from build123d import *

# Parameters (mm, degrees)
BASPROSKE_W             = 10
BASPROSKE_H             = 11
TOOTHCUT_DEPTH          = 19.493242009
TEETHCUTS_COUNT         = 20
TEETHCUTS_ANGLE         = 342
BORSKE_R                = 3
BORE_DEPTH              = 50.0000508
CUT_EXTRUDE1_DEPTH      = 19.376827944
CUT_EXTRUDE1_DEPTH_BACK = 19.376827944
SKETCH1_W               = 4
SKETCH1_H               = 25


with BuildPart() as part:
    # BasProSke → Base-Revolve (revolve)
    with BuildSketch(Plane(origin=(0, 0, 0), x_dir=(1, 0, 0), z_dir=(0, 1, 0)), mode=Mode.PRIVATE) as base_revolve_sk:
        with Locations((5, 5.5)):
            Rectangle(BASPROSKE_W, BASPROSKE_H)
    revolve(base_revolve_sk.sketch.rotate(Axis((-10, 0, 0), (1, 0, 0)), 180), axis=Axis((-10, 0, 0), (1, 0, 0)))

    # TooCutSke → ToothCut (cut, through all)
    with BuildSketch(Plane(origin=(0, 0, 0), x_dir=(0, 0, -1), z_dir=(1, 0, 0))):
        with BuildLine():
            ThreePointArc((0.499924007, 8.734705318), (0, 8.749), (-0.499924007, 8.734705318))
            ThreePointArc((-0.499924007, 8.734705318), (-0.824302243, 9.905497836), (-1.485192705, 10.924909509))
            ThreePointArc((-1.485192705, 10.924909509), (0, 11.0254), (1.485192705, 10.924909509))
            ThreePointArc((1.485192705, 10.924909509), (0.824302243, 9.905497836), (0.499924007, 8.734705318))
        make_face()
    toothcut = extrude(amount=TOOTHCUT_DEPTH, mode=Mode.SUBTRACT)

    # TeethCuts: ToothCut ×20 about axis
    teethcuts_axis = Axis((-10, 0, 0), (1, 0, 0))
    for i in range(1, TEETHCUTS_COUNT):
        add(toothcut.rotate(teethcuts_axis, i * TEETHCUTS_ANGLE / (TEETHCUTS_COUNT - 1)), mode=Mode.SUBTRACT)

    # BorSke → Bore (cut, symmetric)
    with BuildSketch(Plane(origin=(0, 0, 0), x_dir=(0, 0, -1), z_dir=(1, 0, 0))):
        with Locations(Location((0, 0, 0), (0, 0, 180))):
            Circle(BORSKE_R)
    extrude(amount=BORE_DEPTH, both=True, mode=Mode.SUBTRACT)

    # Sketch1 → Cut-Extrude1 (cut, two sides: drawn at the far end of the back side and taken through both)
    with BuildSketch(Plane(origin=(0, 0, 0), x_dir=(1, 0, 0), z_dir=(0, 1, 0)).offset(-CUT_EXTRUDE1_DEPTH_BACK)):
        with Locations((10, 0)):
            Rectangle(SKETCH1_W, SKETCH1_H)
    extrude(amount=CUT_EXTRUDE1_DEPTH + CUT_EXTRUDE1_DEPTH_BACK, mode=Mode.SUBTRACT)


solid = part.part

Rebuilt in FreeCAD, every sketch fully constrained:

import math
import FreeCAD as App
import Part
import Sketcher

doc = App.newDocument("Part")
body = doc.addObject("PartDesign::Body", "Body")

# Sketch on XZ plane
sketch1 = body.newObject("Sketcher::SketchObject", "Sketch")
sketch1.AttachmentSupport = (doc.getObject("XZ_Plane"), [""])
sketch1.MapMode = "FlatFace"
sketch1.addGeometry([
    Part.LineSegment(App.Vector(0, -11, 0), App.Vector(0, 0, 0)),
    Part.LineSegment(App.Vector(0, 0, 0), App.Vector(10, 0, 0)),
    Part.LineSegment(App.Vector(10, 0, 0), App.Vector(10, -11, 0)),
    Part.LineSegment(App.Vector(10, -11, 0), App.Vector(0, -11, 0)),
], False)
sketch1.addConstraint([
    Sketcher.Constraint("Coincident", 0, 2, 1, 1),
    Sketcher.Constraint("Coincident", 1, 2, 2, 1),
    Sketcher.Constraint("Coincident", 2, 2, 3, 1),
    Sketcher.Constraint("Coincident", 3, 2, 0, 1),
    Sketcher.Constraint("Vertical", 0),
    Sketcher.Constraint("Horizontal", 1),
    Sketcher.Constraint("Vertical", 2),
    Sketcher.Constraint("Horizontal", 3),
    Sketcher.Constraint("Coincident", 0, 2, -1, 1),
    Sketcher.Constraint("DistanceX", 1, 1, 1, 2, 10.0),
    Sketcher.Constraint("DistanceY", 0, 1, 0, 2, 11.0),
])
revolution = body.newObject("PartDesign::Revolution", "Revolution")
revolution.Profile = sketch1
revolution.ReferenceAxis = (sketch1, ["H_Axis"])
revolution.Angle = 360

# Sketch on YZ plane
sketch2 = body.newObject("Sketcher::SketchObject", "Sketch001")
sketch2.AttachmentSupport = (doc.getObject("YZ_Plane"), [""])
sketch2.MapMode = "FlatFace"
sketch2.addGeometry([
    Part.ArcOfCircle(Part.Circle(App.Vector(0, 0, 0), App.Vector(0, 0, 1), 8.749), math.radians(-3.275705), math.radians(3.275705)),
    Part.ArcOfCircle(Part.Circle(App.Vector(8.264487, -4.47219, 0), App.Vector(0, 0, 1), 4), math.radians(48.309566), math.radians(83.249005)),
    Part.ArcOfCircle(Part.Circle(App.Vector(0, 0, 0), App.Vector(0, 0, 1), 11.0254), math.radians(-7.741647), math.radians(7.741647)),
    Part.ArcOfCircle(Part.Circle(App.Vector(8.264487, 4.47219, 0), App.Vector(0, 0, 1), 4), math.radians(-83.249005), math.radians(-48.309566)),
], False)
sketch2.addConstraint([
    Sketcher.Constraint("Coincident", 0, 1, 1, 2),
    Sketcher.Constraint("Coincident", 1, 1, 2, 1),
    Sketcher.Constraint("Coincident", 2, 2, 3, 2),
    Sketcher.Constraint("Coincident", 3, 1, 0, 2),
    Sketcher.Constraint("Coincident", 0, 3, -1, 1),
    Sketcher.Constraint("Coincident", 2, 3, -1, 1),
    Sketcher.Constraint("Equal", 1, 3),
    Sketcher.Constraint("Symmetric", 1, 3, 3, 3, -1),
    Sketcher.Constraint("Radius", 1, 4.0),
    Sketcher.Constraint("Radius", 0, 8.749),
    Sketcher.Constraint("Radius", 2, 11.0254),
    Sketcher.Constraint("DistanceY", 1, 3, -1, 1, 4.47219),
    Sketcher.Constraint("DistanceX", -1, 1, 1, 1, 10.92491),
])
pocket1 = body.newObject("PartDesign::Pocket", "Pocket")
pocket1.Profile = sketch2
pocket1.Type = "ThroughAll"
pocket1.Reversed = True
doc.recompute()

polarpattern = body.newObject("PartDesign::PolarPattern", "PolarPattern")
polarpattern.Originals = [pocket1]
polarpattern.Axis = (doc.getObject("X_Axis"), [""])
polarpattern.Angle = 360
polarpattern.Occurrences = 20
body.Tip = polarpattern

# Sketch on YZ plane
sketch3 = body.newObject("Sketcher::SketchObject", "Sketch002")
sketch3.AttachmentSupport = (doc.getObject("YZ_Plane"), [""])
sketch3.MapMode = "FlatFace"
sketch3.addGeometry(Part.Circle(App.Vector(0, 0, 0), App.Vector(0, 0, 1), 3), False)
sketch3.addConstraint([
    Sketcher.Constraint("Coincident", 0, 3, -1, 1),
    Sketcher.Constraint("Diameter", 0, 6.0),
])
pocket2 = body.newObject("PartDesign::Pocket", "Pocket001")
pocket2.Profile = sketch3
pocket2.Length = 100.000102
pocket2.Midplane = True

# Sketch on XZ plane
sketch4 = body.newObject("Sketcher::SketchObject", "Sketch003")
sketch4.AttachmentSupport = (doc.getObject("XZ_Plane"), [""])
sketch4.MapMode = "FlatFace"
sketch4.addGeometry([
    Part.LineSegment(App.Vector(8, -12.5, 0), App.Vector(8, 12.5, 0)),
    Part.LineSegment(App.Vector(8, 12.5, 0), App.Vector(12, 12.5, 0)),
    Part.LineSegment(App.Vector(12, 12.5, 0), App.Vector(12, -12.5, 0)),
    Part.LineSegment(App.Vector(12, -12.5, 0), App.Vector(8, -12.5, 0)),
], False)
sketch4.addConstraint([
    Sketcher.Constraint("Coincident", 0, 2, 1, 1),
    Sketcher.Constraint("Coincident", 1, 2, 2, 1),
    Sketcher.Constraint("Coincident", 2, 2, 3, 1),
    Sketcher.Constraint("Coincident", 3, 2, 0, 1),
    Sketcher.Constraint("Vertical", 0),
    Sketcher.Constraint("Horizontal", 1),
    Sketcher.Constraint("Vertical", 2),
    Sketcher.Constraint("Horizontal", 3),
    Sketcher.Constraint("DistanceX", 1, 1, 1, 2, 4.0),
    Sketcher.Constraint("DistanceY", 0, 1, 0, 2, 25.0),
    Sketcher.Constraint("DistanceX", -1, 1, 0, 2, 8.0),
    Sketcher.Constraint("DistanceY", -1, 1, 0, 2, 12.5),
])
pocket3 = body.newObject("PartDesign::Pocket", "Pocket002")
pocket3.Profile = sketch4
pocket3.Type = "ThroughAll"
pocket3.Midplane = True

doc.recompute()
